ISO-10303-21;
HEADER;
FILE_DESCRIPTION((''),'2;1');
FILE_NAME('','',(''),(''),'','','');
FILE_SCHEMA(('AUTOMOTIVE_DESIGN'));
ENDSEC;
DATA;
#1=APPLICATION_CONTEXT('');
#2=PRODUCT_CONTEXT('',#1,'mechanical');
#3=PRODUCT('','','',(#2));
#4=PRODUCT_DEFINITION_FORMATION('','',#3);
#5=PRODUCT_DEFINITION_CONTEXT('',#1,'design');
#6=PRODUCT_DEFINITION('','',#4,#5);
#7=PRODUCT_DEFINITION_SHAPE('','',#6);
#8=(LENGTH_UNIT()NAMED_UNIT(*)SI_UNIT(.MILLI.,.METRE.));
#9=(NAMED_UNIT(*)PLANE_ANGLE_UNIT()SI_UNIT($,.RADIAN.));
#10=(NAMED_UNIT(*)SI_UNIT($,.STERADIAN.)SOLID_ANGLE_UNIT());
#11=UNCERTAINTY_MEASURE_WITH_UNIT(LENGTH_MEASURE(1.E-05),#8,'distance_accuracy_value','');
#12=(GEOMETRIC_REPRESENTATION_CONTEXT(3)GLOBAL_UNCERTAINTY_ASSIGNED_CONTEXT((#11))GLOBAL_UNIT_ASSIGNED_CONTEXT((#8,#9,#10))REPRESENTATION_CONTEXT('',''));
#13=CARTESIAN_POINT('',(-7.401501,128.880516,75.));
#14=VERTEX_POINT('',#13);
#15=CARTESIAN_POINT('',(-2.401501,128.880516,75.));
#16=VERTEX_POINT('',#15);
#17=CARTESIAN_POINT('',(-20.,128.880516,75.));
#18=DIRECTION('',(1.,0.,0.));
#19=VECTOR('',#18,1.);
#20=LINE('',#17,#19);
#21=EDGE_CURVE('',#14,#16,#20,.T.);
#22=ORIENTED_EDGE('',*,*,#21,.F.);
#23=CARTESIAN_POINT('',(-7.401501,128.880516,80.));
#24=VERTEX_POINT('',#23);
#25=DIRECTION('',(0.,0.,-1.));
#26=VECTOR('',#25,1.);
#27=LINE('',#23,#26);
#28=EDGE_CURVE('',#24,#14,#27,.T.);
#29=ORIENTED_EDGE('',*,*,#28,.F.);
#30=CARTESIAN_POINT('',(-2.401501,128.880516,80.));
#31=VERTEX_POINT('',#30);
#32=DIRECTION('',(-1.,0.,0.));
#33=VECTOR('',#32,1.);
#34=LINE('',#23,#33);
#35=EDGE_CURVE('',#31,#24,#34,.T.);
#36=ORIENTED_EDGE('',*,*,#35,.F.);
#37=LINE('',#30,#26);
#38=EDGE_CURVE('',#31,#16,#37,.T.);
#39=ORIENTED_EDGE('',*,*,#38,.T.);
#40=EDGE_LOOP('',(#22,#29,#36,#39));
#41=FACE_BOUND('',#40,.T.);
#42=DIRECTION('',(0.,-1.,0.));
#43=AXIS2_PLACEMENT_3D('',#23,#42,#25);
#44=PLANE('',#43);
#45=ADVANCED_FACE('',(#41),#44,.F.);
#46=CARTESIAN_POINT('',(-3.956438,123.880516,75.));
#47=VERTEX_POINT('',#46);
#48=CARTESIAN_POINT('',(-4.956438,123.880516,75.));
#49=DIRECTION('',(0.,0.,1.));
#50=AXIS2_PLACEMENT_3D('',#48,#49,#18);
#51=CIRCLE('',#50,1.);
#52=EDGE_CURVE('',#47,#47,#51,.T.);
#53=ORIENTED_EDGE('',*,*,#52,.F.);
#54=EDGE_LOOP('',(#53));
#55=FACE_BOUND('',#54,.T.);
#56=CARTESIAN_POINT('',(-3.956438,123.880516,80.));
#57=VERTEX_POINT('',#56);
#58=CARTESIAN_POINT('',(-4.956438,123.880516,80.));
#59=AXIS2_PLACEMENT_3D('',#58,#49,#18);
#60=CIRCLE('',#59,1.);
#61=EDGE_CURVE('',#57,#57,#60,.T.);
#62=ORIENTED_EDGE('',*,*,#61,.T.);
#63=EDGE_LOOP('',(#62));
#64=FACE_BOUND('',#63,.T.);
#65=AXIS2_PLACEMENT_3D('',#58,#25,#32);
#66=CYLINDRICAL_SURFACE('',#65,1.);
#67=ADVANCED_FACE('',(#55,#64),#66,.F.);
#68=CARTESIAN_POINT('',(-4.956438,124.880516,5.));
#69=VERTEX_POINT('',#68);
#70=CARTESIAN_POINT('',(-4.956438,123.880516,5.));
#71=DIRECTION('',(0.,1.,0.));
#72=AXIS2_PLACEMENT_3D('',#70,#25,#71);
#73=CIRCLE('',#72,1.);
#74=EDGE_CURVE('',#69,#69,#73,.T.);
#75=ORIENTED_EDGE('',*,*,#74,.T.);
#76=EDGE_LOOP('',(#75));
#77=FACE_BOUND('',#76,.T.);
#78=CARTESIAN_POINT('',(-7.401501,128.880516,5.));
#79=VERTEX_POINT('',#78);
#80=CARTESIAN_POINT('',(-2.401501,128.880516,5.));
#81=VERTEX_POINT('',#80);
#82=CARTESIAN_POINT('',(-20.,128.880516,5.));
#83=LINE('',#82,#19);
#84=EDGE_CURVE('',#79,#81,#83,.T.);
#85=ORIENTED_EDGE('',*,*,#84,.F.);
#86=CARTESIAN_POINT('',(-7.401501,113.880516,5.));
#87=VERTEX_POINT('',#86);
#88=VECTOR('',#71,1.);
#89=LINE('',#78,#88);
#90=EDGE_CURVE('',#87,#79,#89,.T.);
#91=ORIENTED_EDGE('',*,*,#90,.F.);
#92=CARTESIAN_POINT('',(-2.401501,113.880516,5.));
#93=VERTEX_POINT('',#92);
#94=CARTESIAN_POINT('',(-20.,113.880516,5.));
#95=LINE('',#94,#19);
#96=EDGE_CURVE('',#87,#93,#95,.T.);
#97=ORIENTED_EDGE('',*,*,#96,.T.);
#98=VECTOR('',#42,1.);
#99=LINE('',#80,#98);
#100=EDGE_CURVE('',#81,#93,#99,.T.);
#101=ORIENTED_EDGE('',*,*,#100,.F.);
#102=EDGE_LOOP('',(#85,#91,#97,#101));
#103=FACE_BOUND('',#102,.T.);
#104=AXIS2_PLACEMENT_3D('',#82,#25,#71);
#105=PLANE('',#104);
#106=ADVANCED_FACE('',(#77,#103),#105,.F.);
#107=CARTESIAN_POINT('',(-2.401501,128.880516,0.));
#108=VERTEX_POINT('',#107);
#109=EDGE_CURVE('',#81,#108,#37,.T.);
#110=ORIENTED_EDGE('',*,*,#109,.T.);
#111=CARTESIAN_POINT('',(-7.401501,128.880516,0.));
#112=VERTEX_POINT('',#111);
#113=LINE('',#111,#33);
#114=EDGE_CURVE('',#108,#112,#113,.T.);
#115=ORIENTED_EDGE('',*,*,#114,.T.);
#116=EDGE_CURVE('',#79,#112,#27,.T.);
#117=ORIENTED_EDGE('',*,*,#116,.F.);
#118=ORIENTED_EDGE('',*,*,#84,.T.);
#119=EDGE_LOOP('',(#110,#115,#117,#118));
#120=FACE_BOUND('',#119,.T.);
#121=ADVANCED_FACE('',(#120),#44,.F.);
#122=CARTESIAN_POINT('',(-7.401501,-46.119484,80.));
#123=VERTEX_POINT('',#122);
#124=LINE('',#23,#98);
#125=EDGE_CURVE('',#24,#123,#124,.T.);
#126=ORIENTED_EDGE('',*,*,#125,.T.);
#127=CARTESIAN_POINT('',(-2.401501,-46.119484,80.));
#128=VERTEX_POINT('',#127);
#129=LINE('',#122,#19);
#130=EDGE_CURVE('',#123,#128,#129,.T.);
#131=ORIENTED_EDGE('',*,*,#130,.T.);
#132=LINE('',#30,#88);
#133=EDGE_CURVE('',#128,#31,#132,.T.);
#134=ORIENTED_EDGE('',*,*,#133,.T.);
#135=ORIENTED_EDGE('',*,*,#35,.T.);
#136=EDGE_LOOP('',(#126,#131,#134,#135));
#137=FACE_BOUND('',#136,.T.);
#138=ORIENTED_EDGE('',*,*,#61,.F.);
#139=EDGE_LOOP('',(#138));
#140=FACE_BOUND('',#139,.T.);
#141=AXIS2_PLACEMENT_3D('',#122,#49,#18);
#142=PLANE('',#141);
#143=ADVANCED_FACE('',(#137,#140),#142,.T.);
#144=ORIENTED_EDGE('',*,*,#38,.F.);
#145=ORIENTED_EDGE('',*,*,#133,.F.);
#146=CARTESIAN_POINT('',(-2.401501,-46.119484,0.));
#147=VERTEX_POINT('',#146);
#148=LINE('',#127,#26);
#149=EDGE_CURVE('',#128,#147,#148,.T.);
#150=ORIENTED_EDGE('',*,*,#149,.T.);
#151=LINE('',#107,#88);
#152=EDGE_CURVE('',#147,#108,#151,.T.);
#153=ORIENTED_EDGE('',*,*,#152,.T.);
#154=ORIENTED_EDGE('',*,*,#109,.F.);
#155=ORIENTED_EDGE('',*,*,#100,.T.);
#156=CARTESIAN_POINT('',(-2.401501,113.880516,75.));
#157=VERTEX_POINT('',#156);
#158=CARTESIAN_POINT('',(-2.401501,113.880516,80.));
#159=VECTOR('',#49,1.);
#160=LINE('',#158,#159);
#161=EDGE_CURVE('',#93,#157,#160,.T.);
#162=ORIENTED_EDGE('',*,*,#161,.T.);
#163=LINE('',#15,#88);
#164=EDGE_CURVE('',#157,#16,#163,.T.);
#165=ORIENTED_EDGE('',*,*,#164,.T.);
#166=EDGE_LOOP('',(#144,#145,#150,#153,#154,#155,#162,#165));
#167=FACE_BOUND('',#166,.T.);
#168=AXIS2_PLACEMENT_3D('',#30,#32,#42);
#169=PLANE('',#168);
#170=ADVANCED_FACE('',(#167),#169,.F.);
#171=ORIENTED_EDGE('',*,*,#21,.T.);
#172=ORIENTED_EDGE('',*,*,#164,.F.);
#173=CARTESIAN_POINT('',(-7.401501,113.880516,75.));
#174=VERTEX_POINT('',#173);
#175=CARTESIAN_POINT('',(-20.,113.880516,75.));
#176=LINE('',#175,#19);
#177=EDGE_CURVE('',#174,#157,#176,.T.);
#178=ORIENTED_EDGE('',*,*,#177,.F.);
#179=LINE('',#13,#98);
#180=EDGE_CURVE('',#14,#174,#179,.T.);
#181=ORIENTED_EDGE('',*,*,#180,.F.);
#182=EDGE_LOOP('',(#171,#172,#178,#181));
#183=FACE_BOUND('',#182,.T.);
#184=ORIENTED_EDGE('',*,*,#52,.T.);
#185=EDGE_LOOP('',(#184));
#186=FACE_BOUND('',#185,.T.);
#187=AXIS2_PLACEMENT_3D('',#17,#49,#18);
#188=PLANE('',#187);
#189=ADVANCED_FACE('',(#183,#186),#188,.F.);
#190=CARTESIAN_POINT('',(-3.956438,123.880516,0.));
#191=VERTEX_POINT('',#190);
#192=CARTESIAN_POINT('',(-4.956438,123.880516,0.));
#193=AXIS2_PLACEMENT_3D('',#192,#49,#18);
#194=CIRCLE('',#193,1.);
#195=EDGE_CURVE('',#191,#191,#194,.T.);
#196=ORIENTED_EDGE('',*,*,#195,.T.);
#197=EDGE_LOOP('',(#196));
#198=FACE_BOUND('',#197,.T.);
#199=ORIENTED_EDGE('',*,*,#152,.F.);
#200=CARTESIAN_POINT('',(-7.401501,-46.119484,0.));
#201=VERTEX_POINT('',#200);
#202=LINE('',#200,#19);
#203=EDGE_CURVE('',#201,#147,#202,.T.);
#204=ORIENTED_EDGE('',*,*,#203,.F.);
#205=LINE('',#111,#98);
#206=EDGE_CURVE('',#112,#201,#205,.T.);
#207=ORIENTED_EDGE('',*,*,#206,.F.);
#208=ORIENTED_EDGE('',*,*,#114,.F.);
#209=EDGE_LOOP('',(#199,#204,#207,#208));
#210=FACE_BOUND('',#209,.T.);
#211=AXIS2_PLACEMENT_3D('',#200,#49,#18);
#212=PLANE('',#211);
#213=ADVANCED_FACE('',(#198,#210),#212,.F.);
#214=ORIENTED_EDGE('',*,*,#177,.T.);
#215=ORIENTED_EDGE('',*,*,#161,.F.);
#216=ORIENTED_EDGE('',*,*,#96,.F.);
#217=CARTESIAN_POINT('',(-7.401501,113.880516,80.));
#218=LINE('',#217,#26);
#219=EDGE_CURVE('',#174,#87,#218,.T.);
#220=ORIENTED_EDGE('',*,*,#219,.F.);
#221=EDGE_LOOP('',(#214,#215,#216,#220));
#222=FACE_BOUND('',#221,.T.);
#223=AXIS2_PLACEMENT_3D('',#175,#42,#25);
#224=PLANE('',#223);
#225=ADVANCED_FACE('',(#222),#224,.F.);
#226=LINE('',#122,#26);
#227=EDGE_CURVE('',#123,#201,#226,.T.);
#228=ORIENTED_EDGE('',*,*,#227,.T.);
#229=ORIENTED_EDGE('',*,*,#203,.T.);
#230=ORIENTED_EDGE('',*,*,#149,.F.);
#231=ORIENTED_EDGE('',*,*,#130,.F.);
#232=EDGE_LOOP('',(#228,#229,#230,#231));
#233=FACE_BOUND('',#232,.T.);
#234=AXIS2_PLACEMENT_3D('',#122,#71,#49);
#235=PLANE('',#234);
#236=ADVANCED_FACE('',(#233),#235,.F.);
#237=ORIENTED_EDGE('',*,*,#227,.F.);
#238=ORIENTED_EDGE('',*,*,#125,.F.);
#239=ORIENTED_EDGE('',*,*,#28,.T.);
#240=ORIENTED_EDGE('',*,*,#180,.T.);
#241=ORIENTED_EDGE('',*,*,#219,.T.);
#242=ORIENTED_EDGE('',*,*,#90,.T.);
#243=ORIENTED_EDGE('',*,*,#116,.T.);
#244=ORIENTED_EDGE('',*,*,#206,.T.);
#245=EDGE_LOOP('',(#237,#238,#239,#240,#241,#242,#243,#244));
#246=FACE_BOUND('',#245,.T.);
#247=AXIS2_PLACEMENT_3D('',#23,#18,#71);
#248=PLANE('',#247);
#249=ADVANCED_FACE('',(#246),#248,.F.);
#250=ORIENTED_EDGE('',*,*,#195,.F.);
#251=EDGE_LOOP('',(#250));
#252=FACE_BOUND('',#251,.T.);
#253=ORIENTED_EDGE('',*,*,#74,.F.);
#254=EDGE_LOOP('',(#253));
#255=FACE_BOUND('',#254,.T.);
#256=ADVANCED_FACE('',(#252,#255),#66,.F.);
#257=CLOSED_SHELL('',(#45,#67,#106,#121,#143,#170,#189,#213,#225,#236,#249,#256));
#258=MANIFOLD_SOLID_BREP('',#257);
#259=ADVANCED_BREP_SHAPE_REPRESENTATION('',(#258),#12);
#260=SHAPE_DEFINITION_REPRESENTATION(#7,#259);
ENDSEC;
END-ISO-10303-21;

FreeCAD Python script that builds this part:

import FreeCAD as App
import Part
import Sketcher

V = App.Vector
Q = App.Units.Quantity


def add_polygon(sketch, points):
    """Adds a closed chain of lines whose ends are joined by coincident constraints."""
    first, n = sketch.GeometryCount, len(points)
    for a, b in zip(points, points[1:] + points[:1]):
        sketch.addGeometry(Part.LineSegment(App.Vector(*a, 0), App.Vector(*b, 0)), False)
    for i in range(n):
        sketch.addConstraint(Sketcher.Constraint("Coincident", first + i, 2, first + (i + 1) % n, 1))

doc = App.newDocument("Part")
body = doc.addObject("PartDesign::Body", "Body")

# Sketch on XY plane
sketch1 = doc.addObject("Sketcher::SketchObject", "Sketch")
body.addObject(sketch1)
sketch1.AttachmentSupport = (doc.XY_Plane, [""])
sketch1.MapMode = "FlatFace"
add_polygon(sketch1, [(-7.401501, 128.880516), (-7.401501, -46.119484), (-2.401501, -46.119484), (-2.401501, 128.880516)])  # lines 0-3
sketch1.addGeometry(Part.Circle(V(-4.956438, 123.880516, 0), V(0, 0, 1), 1), False)  # 4
sketch1.addConstraint([
    Sketcher.Constraint("Vertical", 0),
    Sketcher.Constraint("Horizontal", 1),
    Sketcher.Constraint("Vertical", 2),
    Sketcher.Constraint("Horizontal", 3),
    Sketcher.Constraint("Diameter", 4, Q("2 mm")),
    Sketcher.Constraint("DistanceX", 1, 1, 1, 2, Q("5 mm")),
    Sketcher.Constraint("DistanceY", 0, 2, 0, 1, Q("175 mm")),
    Sketcher.Constraint("DistanceY", 0, 2, 4, 3, Q("170 mm")),
    Sketcher.Constraint("DistanceX", 0, 2, -1, 1, Q("7.401501 mm")),
    Sketcher.Constraint("DistanceX", 4, 3, -1, 1, Q("4.956438 mm")),
    Sketcher.Constraint("DistanceY", -1, 1, 4, 3, Q("123.880516 mm")),
])
pad1 = doc.addObject("PartDesign::Pad", "Pad")
body.addObject(pad1)
pad1.Profile = sketch1
pad1.Length = 80

# Sketch on YZ plane
sketch2 = doc.addObject("Sketcher::SketchObject", "Sketch001")
body.addObject(sketch2)
sketch2.AttachmentSupport = (doc.YZ_Plane, [""])
sketch2.MapMode = "FlatFace"
add_polygon(sketch2, [(128.880516, 75), (113.880516, 75), (113.880516, 5), (128.880516, 5)])  # lines 0-3
sketch2.addConstraint([
    Sketcher.Constraint("Horizontal", 0),
    Sketcher.Constraint("Vertical", 1),
    Sketcher.Constraint("Horizontal", 2),
    Sketcher.Constraint("Vertical", 3),
    Sketcher.Constraint("DistanceX", 0, 2, 0, 1, Q("15 mm")),
    Sketcher.Constraint("DistanceY", 1, 2, 1, 1, Q("70 mm")),
    Sketcher.Constraint("DistanceY", -1, 1, 0, 2, Q("75 mm")),
    Sketcher.Constraint("DistanceX", -1, 1, 0, 2, Q("113.880516 mm")),
])
pocket1 = doc.addObject("PartDesign::Pocket", "Pocket")
body.addObject(pocket1)
pocket1.Profile = sketch2
pocket1.Length = 20

doc.recompute()
